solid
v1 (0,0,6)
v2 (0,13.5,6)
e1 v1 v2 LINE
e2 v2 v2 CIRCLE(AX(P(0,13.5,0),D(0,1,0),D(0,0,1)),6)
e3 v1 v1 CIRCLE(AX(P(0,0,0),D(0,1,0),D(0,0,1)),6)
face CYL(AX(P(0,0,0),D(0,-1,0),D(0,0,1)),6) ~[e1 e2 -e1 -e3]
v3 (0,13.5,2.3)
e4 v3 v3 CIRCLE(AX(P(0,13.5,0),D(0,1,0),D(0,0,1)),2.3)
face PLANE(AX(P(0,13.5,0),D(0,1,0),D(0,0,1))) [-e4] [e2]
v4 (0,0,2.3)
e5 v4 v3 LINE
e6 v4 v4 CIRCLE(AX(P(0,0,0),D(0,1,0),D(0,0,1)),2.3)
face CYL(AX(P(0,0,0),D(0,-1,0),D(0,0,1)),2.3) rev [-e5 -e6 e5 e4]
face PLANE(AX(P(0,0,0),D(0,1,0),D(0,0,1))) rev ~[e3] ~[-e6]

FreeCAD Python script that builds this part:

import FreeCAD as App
import Part
import Sketcher
from FreeCAD import Vector
Q = App.Units.Quantity

doc = App.newDocument("Part")
params = doc.addObject("Spreadsheet::Sheet", "Params")
for row, (alias, value) in enumerate([
    ("sketch1_diameter", "12 mm"),
    ("sketch1_diameter2", "4.6 mm"),
    ("pad1_length", "13.5 mm"),
], start=1):
    params.set(f"A{row}", alias)
    params.set(f"B{row}", "=" + value)
    params.setAlias(f"B{row}", alias)

body = doc.addObject("PartDesign::Body", "Body")

# Sketch on XZ plane
sketch1 = body.newObject("Sketcher::SketchObject", "Sketch")
sketch1.AttachmentSupport = (doc.getObject("XZ_Plane"), [""])
sketch1.MapMode = "FlatFace"
sketch1.addGeometry([
    Part.Circle(Vector(0, 0, 0), Vector(0, 0, 1), 6),
    Part.Circle(Vector(0, 0, 0), Vector(0, 0, 1), 2.3),
], False)
sketch1.addConstraint([
    Sketcher.Constraint("Coincident", 0, 3, -1, 1),
    Sketcher.Constraint("Coincident", 1, 3, -1, 1),
    Sketcher.Constraint("Diameter", 0, Q("12 mm")),
    Sketcher.Constraint("Diameter", 1, Q("4.6 mm")),
])
sketch1.setExpression("Constraints[2]", "Params.sketch1_diameter")
sketch1.setExpression("Constraints[3]", "Params.sketch1_diameter2")
pad1 = body.newObject("PartDesign::Pad", "Pad")
pad1.Profile = sketch1
pad1.setExpression("Length", "Params.pad1_length")
pad1.Reversed = True

doc.recompute()
